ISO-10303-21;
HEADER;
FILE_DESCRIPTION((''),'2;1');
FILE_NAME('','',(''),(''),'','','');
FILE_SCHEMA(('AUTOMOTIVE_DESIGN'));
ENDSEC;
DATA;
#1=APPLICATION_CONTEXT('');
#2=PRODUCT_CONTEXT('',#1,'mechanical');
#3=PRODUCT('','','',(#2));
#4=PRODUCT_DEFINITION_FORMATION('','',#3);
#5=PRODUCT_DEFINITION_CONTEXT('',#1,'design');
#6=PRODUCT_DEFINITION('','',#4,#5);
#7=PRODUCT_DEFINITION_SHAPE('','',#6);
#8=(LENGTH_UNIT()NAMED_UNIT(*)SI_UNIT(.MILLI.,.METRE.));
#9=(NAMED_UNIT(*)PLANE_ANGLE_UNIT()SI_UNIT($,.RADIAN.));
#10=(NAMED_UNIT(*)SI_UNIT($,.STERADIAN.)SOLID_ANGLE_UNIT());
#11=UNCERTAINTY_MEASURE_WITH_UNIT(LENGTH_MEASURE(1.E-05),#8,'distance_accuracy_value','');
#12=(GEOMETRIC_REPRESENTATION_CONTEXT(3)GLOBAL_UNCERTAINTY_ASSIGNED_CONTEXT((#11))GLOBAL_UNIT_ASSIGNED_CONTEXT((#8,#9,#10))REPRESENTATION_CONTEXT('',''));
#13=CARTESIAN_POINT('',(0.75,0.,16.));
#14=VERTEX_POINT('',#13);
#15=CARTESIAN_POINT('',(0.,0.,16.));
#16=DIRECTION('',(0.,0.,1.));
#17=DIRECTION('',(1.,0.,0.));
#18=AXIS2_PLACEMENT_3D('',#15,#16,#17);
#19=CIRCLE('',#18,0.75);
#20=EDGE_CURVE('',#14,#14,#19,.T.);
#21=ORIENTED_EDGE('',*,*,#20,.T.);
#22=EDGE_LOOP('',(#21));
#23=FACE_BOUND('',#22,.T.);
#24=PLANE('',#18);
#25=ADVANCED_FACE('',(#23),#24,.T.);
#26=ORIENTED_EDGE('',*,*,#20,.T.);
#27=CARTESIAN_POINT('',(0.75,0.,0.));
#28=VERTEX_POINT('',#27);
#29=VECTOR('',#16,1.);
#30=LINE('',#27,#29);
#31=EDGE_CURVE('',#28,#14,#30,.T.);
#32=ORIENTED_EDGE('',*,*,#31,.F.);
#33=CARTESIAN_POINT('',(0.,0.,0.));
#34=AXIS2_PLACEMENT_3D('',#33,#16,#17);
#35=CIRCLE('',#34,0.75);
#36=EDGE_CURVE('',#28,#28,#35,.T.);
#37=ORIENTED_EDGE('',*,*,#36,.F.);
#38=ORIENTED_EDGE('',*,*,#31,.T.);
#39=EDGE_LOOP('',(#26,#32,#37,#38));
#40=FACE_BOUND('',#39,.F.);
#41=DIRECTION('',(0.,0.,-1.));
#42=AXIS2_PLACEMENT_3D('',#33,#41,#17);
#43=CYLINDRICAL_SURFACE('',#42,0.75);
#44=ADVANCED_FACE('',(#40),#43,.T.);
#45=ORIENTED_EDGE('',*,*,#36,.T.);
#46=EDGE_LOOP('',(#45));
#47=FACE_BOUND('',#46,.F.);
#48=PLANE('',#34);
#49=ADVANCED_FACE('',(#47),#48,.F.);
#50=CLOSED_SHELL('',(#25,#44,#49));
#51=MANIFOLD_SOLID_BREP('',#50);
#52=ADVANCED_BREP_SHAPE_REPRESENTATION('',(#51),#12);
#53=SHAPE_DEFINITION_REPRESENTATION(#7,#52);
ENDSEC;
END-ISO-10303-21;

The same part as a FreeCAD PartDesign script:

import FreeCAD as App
import Part
import Sketcher
from FreeCAD import Vector

doc = App.newDocument("Part")
body = doc.addObject("PartDesign::Body", "Body")

# Sketch on XY plane
sketch1 = body.newObject("Sketcher::SketchObject", "Sketch")
sketch1.AttachmentSupport = (doc.getObject("XY_Plane"), [""])
sketch1.MapMode = "FlatFace"
sketch1.addGeometry(Part.Circle(Vector(0, 0, 0), Vector(0, 0, 1), 0.8), False)
sketch1.addConstraint([
    Sketcher.Constraint("Coincident", 0, 3, -1, 1),
    Sketcher.Constraint("Diameter", 0, 1.5),
])
pad1 = body.newObject("PartDesign::Pad", "Pad")
pad1.Profile = sketch1
pad1.Length = 16

doc.recompute()
